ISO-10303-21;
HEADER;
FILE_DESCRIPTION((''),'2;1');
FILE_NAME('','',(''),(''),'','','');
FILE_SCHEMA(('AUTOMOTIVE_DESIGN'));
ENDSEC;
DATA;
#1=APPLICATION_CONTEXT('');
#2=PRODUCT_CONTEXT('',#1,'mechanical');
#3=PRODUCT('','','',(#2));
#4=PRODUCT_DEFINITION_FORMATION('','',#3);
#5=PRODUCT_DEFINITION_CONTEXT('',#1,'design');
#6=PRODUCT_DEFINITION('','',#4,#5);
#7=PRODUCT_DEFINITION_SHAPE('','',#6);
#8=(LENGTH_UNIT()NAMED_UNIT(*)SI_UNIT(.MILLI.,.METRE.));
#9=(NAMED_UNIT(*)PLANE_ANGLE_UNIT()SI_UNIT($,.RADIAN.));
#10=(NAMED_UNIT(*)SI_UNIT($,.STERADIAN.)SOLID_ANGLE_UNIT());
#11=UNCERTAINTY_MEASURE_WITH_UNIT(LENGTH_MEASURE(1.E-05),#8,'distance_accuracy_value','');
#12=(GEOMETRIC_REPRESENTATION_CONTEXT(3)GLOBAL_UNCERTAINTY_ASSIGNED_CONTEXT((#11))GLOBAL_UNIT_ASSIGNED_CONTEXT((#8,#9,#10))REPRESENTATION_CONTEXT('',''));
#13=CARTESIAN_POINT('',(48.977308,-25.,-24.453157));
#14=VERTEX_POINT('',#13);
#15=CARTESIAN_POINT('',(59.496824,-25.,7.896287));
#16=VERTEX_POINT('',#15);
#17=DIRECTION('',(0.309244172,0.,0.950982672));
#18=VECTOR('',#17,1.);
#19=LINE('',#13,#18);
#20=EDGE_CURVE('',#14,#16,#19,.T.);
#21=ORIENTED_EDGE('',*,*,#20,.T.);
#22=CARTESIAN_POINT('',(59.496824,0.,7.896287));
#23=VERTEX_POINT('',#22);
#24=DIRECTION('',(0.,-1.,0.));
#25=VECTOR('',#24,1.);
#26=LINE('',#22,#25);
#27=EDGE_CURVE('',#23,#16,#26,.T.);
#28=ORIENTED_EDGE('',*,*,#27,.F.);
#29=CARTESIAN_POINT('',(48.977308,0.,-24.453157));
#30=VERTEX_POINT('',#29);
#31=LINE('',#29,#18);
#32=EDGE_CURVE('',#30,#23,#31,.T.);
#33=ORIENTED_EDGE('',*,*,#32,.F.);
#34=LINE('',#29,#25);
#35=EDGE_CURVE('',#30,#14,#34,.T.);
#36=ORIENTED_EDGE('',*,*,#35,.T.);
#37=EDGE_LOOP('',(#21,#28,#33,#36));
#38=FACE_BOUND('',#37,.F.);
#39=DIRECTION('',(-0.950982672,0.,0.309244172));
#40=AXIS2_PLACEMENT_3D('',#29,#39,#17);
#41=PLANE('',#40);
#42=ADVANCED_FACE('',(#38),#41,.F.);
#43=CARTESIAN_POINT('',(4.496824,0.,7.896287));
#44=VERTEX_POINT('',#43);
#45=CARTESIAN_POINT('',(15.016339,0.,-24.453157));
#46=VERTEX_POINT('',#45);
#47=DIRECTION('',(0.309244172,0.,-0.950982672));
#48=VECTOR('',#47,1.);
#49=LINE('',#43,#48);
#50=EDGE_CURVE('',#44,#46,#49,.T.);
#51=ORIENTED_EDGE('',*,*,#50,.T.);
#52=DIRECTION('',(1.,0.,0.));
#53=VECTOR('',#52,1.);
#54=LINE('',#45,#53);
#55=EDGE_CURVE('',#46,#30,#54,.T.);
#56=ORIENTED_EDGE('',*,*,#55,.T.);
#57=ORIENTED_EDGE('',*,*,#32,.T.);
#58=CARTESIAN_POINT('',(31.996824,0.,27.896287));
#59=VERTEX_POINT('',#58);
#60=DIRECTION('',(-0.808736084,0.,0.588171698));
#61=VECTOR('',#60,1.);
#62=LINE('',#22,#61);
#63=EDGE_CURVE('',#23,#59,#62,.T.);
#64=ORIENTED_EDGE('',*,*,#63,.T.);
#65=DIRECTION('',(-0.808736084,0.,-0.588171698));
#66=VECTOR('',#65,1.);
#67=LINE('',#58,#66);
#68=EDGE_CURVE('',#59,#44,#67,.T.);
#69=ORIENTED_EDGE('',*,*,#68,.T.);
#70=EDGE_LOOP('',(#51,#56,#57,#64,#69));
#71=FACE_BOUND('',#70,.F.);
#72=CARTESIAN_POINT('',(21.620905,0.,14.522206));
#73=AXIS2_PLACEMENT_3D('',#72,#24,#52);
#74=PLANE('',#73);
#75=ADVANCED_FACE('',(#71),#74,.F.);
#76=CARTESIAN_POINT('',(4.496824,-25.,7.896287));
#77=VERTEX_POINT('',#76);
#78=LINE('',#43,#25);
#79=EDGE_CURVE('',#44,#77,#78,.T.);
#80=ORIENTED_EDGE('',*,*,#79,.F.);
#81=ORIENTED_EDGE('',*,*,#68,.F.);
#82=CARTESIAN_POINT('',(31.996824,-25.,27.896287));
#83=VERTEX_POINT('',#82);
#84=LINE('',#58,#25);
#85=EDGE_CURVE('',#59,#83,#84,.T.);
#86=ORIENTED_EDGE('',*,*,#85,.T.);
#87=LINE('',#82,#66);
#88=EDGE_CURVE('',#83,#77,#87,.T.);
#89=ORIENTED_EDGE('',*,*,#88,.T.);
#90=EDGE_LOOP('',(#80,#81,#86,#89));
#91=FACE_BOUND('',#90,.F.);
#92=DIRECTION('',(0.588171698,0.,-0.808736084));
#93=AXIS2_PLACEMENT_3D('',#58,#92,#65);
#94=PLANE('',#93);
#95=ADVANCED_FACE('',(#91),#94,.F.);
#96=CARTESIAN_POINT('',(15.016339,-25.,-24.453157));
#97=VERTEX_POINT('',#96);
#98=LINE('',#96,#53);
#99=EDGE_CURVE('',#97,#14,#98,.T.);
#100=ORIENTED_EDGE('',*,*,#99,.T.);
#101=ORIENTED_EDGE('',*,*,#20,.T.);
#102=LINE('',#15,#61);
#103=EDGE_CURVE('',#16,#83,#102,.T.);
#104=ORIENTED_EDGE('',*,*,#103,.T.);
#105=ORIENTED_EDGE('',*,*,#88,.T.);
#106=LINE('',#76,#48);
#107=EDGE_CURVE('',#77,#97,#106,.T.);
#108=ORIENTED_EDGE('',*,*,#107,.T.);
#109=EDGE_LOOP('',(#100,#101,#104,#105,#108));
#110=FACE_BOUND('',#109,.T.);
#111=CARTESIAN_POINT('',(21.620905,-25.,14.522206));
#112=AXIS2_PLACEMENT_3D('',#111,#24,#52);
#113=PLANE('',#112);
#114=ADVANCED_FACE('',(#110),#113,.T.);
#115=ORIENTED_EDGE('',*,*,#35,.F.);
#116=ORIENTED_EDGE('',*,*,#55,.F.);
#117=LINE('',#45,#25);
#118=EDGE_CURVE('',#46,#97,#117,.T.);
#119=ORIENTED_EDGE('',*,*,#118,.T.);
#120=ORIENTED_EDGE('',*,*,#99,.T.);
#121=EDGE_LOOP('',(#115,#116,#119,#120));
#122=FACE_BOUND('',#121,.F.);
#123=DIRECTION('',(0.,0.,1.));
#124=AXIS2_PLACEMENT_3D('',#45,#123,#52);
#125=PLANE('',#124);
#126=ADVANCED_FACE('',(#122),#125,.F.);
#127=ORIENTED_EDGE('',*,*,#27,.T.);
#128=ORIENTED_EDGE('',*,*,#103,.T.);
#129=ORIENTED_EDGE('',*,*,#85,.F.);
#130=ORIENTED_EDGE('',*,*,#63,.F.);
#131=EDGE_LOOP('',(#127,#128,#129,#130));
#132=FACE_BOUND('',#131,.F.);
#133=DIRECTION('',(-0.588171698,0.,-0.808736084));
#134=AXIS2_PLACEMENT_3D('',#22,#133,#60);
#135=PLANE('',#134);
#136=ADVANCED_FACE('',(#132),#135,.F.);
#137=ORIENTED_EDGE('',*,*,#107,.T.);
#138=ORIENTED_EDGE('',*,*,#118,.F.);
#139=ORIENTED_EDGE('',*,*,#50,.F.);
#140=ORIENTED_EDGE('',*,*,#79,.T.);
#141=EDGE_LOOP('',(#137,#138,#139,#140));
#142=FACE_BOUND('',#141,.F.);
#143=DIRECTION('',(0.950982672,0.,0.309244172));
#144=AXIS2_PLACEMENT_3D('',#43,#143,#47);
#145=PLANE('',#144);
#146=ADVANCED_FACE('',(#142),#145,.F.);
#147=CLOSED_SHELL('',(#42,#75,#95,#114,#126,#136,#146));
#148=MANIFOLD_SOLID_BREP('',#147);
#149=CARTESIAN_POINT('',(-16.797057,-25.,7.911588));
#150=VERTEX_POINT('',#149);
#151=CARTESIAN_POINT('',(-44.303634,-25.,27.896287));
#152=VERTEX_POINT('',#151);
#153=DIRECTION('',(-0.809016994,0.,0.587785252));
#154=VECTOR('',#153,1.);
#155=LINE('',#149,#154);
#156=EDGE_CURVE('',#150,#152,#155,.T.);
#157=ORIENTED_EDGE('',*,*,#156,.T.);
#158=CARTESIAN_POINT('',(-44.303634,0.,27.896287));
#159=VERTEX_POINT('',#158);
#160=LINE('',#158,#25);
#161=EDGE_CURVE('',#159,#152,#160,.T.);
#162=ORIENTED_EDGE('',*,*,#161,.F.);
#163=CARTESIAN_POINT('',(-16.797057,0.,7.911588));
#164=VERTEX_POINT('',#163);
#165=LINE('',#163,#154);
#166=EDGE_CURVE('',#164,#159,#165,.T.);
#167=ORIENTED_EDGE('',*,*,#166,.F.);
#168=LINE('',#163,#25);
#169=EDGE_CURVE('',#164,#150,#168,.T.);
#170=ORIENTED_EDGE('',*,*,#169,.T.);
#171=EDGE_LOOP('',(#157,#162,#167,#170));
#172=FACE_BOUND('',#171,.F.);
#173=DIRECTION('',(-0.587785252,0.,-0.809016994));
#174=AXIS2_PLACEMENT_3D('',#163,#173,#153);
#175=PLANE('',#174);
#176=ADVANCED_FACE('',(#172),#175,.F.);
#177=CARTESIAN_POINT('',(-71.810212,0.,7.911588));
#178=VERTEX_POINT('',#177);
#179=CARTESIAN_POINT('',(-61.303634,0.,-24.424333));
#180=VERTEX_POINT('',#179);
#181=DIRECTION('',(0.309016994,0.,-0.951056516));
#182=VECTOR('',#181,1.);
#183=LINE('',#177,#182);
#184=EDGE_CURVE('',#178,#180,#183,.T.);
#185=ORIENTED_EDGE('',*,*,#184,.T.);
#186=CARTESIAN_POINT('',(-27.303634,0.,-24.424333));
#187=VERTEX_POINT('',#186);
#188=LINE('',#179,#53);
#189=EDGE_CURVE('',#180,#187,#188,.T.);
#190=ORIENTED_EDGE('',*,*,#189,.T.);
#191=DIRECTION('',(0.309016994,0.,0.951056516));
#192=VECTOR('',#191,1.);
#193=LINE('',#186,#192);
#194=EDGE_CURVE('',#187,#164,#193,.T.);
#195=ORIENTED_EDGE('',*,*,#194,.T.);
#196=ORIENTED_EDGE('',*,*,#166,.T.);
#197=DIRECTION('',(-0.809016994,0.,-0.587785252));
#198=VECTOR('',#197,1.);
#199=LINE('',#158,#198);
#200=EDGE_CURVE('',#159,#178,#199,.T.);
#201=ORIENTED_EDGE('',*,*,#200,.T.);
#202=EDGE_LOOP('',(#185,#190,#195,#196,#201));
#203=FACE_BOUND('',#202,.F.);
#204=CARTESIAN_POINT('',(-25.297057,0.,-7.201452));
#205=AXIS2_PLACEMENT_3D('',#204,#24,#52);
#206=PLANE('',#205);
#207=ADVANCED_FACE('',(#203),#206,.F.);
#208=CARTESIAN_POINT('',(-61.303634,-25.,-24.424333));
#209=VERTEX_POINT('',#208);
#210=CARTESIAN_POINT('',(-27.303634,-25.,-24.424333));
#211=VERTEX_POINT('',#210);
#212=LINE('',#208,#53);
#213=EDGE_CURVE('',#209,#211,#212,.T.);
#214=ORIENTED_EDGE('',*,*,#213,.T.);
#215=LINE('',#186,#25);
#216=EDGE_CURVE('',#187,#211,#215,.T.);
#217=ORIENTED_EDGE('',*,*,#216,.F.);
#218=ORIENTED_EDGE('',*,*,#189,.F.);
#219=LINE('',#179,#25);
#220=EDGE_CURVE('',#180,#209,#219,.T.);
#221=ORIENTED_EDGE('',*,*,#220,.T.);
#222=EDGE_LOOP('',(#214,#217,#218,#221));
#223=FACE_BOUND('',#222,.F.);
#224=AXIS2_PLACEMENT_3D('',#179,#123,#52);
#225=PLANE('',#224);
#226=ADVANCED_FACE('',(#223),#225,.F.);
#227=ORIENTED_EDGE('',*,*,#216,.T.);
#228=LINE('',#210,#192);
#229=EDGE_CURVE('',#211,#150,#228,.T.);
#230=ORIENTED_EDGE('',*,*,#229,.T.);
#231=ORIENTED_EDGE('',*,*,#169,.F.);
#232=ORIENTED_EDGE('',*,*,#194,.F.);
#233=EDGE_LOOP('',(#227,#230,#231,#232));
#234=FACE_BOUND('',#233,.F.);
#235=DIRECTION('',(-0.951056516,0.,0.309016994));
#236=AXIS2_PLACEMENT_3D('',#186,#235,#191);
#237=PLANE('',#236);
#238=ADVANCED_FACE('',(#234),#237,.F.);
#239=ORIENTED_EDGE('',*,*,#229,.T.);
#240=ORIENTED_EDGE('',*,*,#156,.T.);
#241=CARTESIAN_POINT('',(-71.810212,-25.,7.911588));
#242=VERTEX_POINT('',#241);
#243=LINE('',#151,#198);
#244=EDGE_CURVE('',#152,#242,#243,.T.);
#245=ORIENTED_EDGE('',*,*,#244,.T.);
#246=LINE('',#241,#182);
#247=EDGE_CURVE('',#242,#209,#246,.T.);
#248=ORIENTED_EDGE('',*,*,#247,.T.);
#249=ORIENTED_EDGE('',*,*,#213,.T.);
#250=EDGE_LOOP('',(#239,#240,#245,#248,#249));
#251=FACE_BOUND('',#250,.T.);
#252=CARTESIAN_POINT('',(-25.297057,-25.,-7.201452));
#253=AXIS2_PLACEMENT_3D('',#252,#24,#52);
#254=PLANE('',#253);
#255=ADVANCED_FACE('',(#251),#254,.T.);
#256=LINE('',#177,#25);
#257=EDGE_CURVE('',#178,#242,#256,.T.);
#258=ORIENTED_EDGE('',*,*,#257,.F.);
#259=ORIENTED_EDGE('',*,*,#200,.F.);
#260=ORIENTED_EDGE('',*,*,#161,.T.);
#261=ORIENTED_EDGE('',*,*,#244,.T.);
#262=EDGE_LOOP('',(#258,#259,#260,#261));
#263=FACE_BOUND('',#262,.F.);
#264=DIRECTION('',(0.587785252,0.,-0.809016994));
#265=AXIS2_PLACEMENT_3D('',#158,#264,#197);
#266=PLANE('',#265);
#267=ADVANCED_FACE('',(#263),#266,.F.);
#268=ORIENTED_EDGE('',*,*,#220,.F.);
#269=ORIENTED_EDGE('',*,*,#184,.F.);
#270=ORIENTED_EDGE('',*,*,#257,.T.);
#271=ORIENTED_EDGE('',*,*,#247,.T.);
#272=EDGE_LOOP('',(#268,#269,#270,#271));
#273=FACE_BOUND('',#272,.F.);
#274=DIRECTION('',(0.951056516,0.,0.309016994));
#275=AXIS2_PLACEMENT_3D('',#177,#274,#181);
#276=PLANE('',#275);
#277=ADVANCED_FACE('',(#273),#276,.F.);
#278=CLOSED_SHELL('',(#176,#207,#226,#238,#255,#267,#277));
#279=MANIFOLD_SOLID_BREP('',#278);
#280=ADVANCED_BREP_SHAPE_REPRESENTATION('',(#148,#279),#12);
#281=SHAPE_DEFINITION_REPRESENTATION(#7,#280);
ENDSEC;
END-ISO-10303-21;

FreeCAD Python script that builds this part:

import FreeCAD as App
import Part
import Sketcher
from FreeCAD import Vector
Q = App.Units.Quantity


def add_polygon(sketch, points):
    """Adds a closed chain of lines whose ends are joined by coincident constraints."""
    first, n = sketch.GeometryCount, len(points)
    for a, b in zip(points, points[1:] + points[:1]):
        sketch.addGeometry(Part.LineSegment(App.Vector(*a, 0), App.Vector(*b, 0)), False)
    for i in range(n):
        sketch.addConstraint(Sketcher.Constraint("Coincident", first + i, 2, first + (i + 1) % n, 1))

doc = App.newDocument("Part")
body = doc.addObject("PartDesign::Body", "Body")

sketch1 = body.newObject("Sketcher::SketchObject", "Sketch")
sketch1.AttachmentSupport = (doc.getObject("XZ_Plane"), [""])
sketch1.MapMode = "FlatFace"
add_polygon(sketch1, [(-17, 8), (-44, 28), (-72, 8), (-61, -24), (-27, -24)])
sketch1.addConstraint(Sketcher.Constraint("Horizontal", 3))
sketch1.addConstraint(Sketcher.Constraint("Horizontal", 1, 2, 4, 2))
sketch1.addConstraint(Sketcher.Constraint("Equal", 0, 1))
sketch1.addConstraint(Sketcher.Constraint("Equal", 1, 2))
sketch1.addConstraint(Sketcher.Constraint("Equal", 2, 4))
sketch1.addConstraint(Sketcher.Constraint("DistanceX", 3, 1, 3, 2, Q("34 mm")))
sketch1.addConstraint(Sketcher.Constraint("Angle", 0, Q("144 deg")))
sketch1.addConstraint(Sketcher.Constraint("Angle", 2, Q("-72 deg")))
sketch1.addConstraint(Sketcher.Constraint("DistanceY", -1, 1, 1, 2, Q("7.911588 mm")))
sketch1.addConstraint(Sketcher.Constraint("DistanceX", 0, 2, -1, 1, Q("44.303634 mm")))
pad1 = body.newObject("PartDesign::Pad", "Pad")
pad1.Profile = sketch1
pad1.Length = 25
body2 = doc.addObject("PartDesign::Body", "Body001")

sketch2 = body2.newObject("Sketcher::SketchObject", "Sketch001")
sketch2.AttachmentSupport = (doc.getObject("XZ_Plane001"), [""])
sketch2.MapMode = "FlatFace"
add_polygon(sketch2, [(32, 28), (4, 8), (15, -24), (49, -24), (59, 8)])
sketch2.addConstraint(Sketcher.Constraint("Horizontal", 2))
sketch2.addConstraint(Sketcher.Constraint("Horizontal", 0, 2, 3, 2))
sketch2.addConstraint(Sketcher.Constraint("Equal", 1, 3))
sketch2.addConstraint(Sketcher.Constraint("Equal", 0, 4))
sketch2.addConstraint(Sketcher.Constraint("DistanceX", 0, 2, 3, 2, Q("55 mm")))
sketch2.addConstraint(Sketcher.Constraint("DistanceY", 0, 2, 4, 2, Q("20 mm")))
sketch2.addConstraint(Sketcher.Constraint("DistanceX", 2, 1, 2, 2, Q("33.960969 mm")))
sketch2.addConstraint(Sketcher.Constraint("Distance", 1, Q("34.016859 mm")))
sketch2.addConstraint(Sketcher.Constraint("DistanceX", -1, 1, 1, 2, Q("15.016339 mm")))
sketch2.addConstraint(Sketcher.Constraint("DistanceY", -1, 1, 0, 2, Q("7.896287 mm")))
pad2 = body2.newObject("PartDesign::Pad", "Pad001")
pad2.Profile = sketch2
pad2.Length = 25

doc.recompute()
